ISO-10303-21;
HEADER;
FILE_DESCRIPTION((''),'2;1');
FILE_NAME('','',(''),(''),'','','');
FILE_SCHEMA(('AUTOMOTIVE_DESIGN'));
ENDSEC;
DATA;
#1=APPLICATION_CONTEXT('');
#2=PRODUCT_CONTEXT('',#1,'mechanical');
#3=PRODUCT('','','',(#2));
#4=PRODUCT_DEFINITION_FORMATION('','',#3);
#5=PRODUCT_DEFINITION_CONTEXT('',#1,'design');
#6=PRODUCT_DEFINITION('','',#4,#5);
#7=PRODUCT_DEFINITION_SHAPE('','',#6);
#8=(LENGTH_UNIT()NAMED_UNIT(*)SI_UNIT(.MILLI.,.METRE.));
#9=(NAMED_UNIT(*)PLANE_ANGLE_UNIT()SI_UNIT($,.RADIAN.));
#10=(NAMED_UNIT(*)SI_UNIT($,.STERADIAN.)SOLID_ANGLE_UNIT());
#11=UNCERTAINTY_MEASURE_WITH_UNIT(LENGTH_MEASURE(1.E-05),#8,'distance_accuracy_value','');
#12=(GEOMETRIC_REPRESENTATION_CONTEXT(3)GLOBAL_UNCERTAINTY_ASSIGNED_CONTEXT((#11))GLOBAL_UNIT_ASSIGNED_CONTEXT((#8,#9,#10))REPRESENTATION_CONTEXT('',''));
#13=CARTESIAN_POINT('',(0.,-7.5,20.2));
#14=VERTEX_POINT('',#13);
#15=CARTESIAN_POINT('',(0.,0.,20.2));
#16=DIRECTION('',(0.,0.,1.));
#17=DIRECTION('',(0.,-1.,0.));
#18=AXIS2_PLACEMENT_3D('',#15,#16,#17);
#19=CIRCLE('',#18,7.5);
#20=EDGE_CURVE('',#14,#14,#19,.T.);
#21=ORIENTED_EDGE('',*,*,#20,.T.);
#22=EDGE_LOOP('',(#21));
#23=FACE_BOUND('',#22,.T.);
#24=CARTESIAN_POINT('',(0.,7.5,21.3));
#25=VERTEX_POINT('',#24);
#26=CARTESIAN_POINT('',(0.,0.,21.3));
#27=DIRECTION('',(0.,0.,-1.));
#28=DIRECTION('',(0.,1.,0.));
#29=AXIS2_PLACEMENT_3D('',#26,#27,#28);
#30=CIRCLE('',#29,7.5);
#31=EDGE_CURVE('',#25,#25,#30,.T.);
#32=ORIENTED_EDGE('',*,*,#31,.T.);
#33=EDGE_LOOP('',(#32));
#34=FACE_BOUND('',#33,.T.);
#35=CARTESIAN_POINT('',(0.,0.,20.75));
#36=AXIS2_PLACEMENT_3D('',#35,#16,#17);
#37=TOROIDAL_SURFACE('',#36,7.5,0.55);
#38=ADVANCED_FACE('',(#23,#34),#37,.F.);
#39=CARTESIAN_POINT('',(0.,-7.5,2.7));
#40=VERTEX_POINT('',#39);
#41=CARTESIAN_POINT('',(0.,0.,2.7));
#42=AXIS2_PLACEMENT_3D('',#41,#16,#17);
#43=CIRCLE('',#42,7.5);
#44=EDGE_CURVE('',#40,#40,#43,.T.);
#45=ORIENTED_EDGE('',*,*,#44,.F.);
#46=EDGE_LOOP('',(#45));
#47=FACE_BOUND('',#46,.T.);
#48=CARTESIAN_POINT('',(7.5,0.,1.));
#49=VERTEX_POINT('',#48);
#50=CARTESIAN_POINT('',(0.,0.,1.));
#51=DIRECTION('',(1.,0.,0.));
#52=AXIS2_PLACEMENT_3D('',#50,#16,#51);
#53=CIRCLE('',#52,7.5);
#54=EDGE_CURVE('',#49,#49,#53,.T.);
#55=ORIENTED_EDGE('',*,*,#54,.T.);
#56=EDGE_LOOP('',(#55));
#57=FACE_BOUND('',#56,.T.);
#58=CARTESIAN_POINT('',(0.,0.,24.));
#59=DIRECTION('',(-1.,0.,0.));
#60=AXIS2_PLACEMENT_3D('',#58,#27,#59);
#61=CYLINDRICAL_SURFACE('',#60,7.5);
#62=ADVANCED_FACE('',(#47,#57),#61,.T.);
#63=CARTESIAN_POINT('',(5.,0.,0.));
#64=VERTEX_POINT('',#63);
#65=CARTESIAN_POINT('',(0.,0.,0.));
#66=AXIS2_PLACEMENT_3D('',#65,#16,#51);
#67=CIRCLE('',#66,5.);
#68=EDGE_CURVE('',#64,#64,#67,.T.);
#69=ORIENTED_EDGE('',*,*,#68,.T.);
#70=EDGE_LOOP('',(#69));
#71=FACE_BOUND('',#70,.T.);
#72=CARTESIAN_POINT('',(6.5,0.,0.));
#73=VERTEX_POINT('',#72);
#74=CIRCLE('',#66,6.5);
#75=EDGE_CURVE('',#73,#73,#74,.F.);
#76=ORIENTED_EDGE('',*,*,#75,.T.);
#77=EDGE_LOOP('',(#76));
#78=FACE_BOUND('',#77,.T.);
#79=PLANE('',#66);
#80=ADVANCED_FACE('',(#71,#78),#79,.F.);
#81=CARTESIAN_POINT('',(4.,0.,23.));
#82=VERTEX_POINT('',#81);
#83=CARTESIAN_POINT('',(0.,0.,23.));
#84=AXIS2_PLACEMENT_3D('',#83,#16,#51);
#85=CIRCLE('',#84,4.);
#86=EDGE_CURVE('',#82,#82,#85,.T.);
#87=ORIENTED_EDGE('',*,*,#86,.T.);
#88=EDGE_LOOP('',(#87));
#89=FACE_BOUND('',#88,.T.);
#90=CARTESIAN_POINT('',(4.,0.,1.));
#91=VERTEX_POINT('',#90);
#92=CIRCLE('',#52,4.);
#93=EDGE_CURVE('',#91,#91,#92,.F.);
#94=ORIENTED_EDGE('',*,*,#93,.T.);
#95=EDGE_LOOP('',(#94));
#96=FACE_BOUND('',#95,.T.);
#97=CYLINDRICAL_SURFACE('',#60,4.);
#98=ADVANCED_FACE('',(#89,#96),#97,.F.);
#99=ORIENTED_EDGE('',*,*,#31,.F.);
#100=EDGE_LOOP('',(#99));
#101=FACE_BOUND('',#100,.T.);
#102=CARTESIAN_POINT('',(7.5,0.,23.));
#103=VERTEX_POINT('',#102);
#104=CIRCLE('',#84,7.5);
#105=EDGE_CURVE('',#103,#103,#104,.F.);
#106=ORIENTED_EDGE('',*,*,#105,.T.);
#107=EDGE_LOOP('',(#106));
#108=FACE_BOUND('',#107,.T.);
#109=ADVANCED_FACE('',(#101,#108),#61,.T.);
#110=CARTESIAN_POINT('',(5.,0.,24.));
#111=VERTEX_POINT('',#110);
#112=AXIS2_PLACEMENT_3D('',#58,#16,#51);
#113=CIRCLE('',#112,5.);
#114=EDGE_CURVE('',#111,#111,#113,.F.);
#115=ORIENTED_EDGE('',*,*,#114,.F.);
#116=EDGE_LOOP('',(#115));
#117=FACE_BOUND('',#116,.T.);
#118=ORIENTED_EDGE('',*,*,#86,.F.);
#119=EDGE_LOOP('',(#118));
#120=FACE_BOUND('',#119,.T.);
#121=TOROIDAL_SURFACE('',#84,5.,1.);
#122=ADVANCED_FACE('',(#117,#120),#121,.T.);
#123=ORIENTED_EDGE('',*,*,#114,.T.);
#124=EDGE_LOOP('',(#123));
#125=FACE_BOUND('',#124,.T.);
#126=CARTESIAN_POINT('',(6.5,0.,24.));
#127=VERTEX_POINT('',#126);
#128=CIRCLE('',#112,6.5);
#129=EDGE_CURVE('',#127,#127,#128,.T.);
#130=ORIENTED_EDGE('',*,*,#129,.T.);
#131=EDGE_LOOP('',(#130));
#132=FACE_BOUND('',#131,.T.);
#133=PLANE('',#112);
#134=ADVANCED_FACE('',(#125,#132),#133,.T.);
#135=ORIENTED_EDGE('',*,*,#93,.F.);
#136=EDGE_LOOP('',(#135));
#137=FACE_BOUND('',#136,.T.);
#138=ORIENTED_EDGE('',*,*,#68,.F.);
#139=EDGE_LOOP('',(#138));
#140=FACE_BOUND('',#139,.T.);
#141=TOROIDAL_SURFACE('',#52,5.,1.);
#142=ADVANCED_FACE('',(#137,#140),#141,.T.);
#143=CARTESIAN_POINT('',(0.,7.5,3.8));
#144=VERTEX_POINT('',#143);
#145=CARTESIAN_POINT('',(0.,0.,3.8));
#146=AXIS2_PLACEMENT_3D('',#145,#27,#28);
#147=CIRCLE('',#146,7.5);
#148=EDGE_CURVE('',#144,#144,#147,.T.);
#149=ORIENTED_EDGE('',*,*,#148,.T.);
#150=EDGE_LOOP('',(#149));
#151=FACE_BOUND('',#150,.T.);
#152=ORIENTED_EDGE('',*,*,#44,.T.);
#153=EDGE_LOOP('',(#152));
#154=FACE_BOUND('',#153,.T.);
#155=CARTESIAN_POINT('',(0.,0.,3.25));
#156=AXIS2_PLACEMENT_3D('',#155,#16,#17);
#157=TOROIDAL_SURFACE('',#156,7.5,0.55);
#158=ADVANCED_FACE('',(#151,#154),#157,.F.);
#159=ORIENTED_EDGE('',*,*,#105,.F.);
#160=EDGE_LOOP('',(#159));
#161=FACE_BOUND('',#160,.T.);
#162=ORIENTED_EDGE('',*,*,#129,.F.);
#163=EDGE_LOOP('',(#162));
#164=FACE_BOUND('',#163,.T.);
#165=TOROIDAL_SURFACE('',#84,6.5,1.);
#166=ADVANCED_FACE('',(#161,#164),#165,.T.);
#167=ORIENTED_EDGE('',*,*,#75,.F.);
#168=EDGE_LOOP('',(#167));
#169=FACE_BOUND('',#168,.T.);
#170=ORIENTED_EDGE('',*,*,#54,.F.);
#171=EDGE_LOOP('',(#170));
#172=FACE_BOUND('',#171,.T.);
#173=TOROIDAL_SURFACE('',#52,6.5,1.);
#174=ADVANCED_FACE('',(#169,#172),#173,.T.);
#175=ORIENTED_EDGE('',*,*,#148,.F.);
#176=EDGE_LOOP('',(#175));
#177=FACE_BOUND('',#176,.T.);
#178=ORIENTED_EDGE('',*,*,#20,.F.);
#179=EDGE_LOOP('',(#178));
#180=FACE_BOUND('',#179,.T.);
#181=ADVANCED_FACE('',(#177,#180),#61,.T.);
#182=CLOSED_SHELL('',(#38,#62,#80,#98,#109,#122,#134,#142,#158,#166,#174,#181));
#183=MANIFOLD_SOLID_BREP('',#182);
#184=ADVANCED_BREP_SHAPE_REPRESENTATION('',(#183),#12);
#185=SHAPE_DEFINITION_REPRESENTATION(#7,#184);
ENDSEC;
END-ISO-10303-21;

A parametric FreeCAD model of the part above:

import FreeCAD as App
import Part
import Sketcher
from FreeCAD import Vector
Q = App.Units.Quantity


def edges_at(feature, points):
    """Names of the edges that pass closest to the given points."""
    edges = feature.Shape.Edges
    near = lambda p: min(range(len(edges)), key=lambda i: edges[i].distToShape(Part.Vertex(*p))[0])
    return sorted({f"Edge{near(p) + 1}" for p in points})

doc = App.newDocument("Part")
body = doc.addObject("PartDesign::Body", "Body")

# Sketch on XY plane
sketch1 = doc.addObject("Sketcher::SketchObject", "Sketch")
body.addObject(sketch1)
sketch1.AttachmentSupport = (doc.XY_Plane, [""])
sketch1.MapMode = "FlatFace"
sketch1.addGeometry([
    Part.Circle(Vector(0, 0, 0), Vector(0, 0, 1), 7.5),
    Part.Circle(Vector(0, 0, 0), Vector(0, 0, 1), 4),
], False)
sketch1.addConstraint([
    Sketcher.Constraint("Coincident", 0, 3, -1, 1),
    Sketcher.Constraint("Coincident", 1, 3, -1, 1),
    Sketcher.Constraint("Diameter", 0, Q("15 mm")),
    Sketcher.Constraint("Diameter", 1, Q("8 mm")),
])
pad1 = doc.addObject("PartDesign::Pad", "Pad")
body.addObject(pad1)
pad1.Profile = sketch1
pad1.Length = 24
doc.recompute()

fillet = doc.addObject("PartDesign::Fillet", "Fillet")
body.addObject(fillet)
fillet.Base = (pad1, edges_at(pad1, [
    (-7.5, 0, 0),
    (-7.5, 0, 24),
    (-4, 0, 0),
    (-4, 0, 24),
]))
fillet.Radius = 1

# Sketch on YZ plane
sketch2 = doc.addObject("Sketcher::SketchObject", "Sketch001")
body.addObject(sketch2)
sketch2.AttachmentSupport = (doc.YZ_Plane, [""])
sketch2.MapMode = "FlatFace"
sketch2.addGeometry([
    Part.Circle(Vector(7.5, 20.75, 0), Vector(0, 0, 1), 0.55),
    Part.Circle(Vector(7.5, 3.25, 0), Vector(0, 0, 1), 0.55),
], False)
sketch2.addConstraint([
    Sketcher.Constraint("Equal", 0, 1),
    Sketcher.Constraint("Vertical", 0, 3, 1, 3),
    Sketcher.Constraint("Diameter", 0, Q("1.1 mm")),
    Sketcher.Constraint("DistanceX", -1, 1, 0, 3, Q("7.5 mm")),
    Sketcher.Constraint("DistanceY", 1, 3, 0, 3, Q("17.5 mm")),
    Sketcher.Constraint("DistanceY", -1, 1, 0, 3, Q("20.75 mm")),
])
groove = doc.addObject("PartDesign::Groove", "Groove")
body.addObject(groove)
groove.Profile = sketch2
groove.ReferenceAxis = (sketch2, ["V_Axis"])
groove.Angle = 360

doc.recompute()
